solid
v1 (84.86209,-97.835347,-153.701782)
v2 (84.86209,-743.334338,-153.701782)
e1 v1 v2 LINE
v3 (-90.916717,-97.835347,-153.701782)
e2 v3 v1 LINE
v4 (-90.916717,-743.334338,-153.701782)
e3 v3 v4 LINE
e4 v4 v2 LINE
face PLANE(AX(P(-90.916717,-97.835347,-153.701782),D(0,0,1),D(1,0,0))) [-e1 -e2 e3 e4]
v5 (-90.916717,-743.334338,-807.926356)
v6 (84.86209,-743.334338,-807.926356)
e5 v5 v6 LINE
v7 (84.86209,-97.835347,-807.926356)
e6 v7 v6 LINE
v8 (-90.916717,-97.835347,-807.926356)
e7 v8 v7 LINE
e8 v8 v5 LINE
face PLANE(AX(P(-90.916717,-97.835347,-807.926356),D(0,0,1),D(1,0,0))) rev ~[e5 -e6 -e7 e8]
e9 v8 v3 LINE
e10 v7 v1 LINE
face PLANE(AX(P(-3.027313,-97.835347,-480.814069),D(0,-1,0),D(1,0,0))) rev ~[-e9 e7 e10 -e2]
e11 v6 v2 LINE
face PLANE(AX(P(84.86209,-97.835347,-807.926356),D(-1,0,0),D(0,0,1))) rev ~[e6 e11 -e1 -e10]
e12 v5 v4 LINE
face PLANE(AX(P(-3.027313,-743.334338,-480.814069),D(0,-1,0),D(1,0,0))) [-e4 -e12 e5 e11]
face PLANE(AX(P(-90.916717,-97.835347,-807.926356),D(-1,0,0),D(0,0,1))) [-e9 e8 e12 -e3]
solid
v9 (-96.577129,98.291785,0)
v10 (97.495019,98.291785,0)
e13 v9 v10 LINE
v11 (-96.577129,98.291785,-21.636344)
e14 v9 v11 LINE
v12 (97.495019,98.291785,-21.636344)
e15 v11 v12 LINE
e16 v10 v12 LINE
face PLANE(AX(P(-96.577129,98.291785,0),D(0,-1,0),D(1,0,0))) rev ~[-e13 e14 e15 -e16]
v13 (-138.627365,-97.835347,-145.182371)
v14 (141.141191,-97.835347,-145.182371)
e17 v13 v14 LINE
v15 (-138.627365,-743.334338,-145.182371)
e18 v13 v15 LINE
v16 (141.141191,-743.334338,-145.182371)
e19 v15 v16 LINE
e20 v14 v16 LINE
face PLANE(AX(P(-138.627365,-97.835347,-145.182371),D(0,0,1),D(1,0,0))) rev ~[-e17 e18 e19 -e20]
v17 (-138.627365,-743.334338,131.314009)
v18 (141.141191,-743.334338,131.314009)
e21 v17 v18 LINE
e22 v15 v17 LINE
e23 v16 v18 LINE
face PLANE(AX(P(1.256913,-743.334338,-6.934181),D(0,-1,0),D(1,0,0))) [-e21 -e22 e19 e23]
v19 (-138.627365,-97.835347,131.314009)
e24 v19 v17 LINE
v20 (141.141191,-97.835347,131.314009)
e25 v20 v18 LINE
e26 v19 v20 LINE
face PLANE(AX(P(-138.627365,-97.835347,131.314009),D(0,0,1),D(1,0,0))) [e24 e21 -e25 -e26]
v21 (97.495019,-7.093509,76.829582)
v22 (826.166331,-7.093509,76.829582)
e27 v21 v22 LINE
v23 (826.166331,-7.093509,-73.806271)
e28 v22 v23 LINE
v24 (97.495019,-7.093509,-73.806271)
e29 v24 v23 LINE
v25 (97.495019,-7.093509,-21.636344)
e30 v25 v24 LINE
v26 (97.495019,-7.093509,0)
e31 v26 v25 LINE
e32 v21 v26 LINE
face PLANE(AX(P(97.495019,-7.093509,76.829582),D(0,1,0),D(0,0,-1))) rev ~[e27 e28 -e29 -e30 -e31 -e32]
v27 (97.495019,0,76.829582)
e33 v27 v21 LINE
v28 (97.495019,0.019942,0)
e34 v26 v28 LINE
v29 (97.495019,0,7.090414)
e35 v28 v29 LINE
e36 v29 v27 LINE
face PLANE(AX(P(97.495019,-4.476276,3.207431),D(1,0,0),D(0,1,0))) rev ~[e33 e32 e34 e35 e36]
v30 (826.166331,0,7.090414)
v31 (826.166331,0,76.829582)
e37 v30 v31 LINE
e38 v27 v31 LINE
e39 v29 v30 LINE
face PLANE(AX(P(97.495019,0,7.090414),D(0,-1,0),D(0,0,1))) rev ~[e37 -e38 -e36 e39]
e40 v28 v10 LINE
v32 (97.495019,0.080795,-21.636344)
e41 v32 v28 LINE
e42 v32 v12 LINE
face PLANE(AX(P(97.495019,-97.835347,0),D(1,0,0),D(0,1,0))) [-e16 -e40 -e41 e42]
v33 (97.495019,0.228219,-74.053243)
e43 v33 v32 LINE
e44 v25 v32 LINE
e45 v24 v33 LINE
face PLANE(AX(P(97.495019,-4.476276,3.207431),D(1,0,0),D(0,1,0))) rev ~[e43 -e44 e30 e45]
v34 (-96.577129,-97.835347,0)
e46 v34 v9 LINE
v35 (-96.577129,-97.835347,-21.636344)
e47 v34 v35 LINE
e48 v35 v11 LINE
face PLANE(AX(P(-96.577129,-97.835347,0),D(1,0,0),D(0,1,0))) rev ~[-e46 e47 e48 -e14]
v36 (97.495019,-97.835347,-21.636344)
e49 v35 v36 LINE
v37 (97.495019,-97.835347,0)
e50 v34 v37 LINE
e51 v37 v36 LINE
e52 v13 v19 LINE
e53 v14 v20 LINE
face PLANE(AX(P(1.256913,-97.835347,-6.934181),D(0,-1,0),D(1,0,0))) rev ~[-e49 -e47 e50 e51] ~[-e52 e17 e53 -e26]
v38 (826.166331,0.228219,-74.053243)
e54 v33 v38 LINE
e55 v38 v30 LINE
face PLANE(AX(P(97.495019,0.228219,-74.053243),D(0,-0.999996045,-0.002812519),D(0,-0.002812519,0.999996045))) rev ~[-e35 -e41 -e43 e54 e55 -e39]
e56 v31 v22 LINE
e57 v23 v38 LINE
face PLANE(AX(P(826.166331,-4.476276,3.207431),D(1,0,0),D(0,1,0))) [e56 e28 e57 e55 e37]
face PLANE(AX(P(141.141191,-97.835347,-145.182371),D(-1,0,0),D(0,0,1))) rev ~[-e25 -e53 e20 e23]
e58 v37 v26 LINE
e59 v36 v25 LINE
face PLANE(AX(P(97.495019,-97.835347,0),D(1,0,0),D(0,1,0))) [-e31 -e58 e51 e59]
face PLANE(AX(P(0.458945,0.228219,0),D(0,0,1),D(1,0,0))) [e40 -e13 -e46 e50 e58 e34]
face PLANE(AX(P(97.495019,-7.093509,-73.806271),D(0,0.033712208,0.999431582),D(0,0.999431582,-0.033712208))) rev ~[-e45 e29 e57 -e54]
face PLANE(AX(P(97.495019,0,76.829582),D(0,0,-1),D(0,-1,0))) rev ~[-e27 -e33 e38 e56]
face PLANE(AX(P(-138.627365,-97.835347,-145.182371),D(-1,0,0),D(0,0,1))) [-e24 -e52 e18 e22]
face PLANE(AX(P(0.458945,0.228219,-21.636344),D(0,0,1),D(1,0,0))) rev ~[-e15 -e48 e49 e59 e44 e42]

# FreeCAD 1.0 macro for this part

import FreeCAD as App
import Part
import Sketcher
from FreeCAD import Vector
Q = App.Units.Quantity

doc = App.newDocument("Part")
body = doc.addObject("PartDesign::Body", "Body")
body.AllowCompound = True

sketch1 = body.newObject("Sketcher::SketchObject", "Sketch")
sketch1.AttachmentSupport = (doc.getObject("XY_Plane"), [""])
sketch1.MapMode = "FlatFace"
sketch1.addGeometry(Part.LineSegment(Vector(-96.577129, 98.291785, 0), Vector(-96.577129, -97.835347, 0)), False)
sketch1.addGeometry(Part.LineSegment(Vector(-96.577129, -97.835347, 0), Vector(97.495019, -97.835347, 0)), False)
sketch1.addGeometry(Part.LineSegment(Vector(97.495019, -97.835347, 0), Vector(97.495019, 98.291785, 0)), False)
sketch1.addGeometry(Part.LineSegment(Vector(97.495019, 98.291785, 0), Vector(-96.577129, 98.291785, 0)), False)
sketch1.addConstraint(Sketcher.Constraint("Coincident", 0, 2, 1, 1))
sketch1.addConstraint(Sketcher.Constraint("Coincident", 1, 2, 2, 1))
sketch1.addConstraint(Sketcher.Constraint("Coincident", 2, 2, 3, 1))
sketch1.addConstraint(Sketcher.Constraint("Coincident", 3, 2, 0, 1))
sketch1.addConstraint(Sketcher.Constraint("Vertical", 0))
sketch1.addConstraint(Sketcher.Constraint("Horizontal", 1))
sketch1.addConstraint(Sketcher.Constraint("Vertical", 2))
sketch1.addConstraint(Sketcher.Constraint("Horizontal", 3))
sketch1.addConstraint(Sketcher.Constraint("DistanceX", 1, 1, 1, 2, Q("194.072149 mm")))
sketch1.addConstraint(Sketcher.Constraint("DistanceY", 0, 2, 0, 1, Q("196.127132 mm")))
sketch1.addConstraint(Sketcher.Constraint("DistanceX", 0, 2, -1, 1, Q("96.577129 mm")))
sketch1.addConstraint(Sketcher.Constraint("DistanceY", 0, 2, -1, 1, Q("97.835347 mm")))
pad1 = body.newObject("PartDesign::Pad", "Pad")
pad1.Profile = sketch1
pad1.Length = 21.636344
pad1.Reversed = True

sketch2 = body.newObject("Sketcher::SketchObject", "Sketch001")
sketch2.AttachmentSupport = (doc.getObject("YZ_Plane"), [""])
sketch2.MapMode = "FlatFace"
sketch2.AttachmentOffset = App.Placement(Vector(0, 0, 97.495019), App.Rotation())
sketch2.addGeometry(Part.LineSegment(Vector(0, 7.090414, 0), Vector(0, 76.829582, 0)), False)
sketch2.addGeometry(Part.LineSegment(Vector(0, 76.829582, 0), Vector(-7.093509, 76.829582, 0)), False)
sketch2.addGeometry(Part.LineSegment(Vector(-7.093509, 76.829582, 0), Vector(-7.093509, -73.806271, 0)), False)
sketch2.addGeometry(Part.LineSegment(Vector(-7.093509, -73.806271, 0), Vector(0.228219, -74.053243, 0)), False)
sketch2.addGeometry(Part.LineSegment(Vector(0.228219, -74.053243, 0), Vector(0, 7.090414, 0)), False)
sketch2.addConstraint(Sketcher.Constraint("Coincident", 0, 2, 1, 1))
sketch2.addConstraint(Sketcher.Constraint("Coincident", 1, 2, 2, 1))
sketch2.addConstraint(Sketcher.Constraint("Coincident", 2, 2, 3, 1))
sketch2.addConstraint(Sketcher.Constraint("Coincident", 3, 2, 4, 1))
sketch2.addConstraint(Sketcher.Constraint("Coincident", 4, 2, 0, 1))
sketch2.addConstraint(Sketcher.Constraint("Vertical", 0))
sketch2.addConstraint(Sketcher.Constraint("Horizontal", 1))
sketch2.addConstraint(Sketcher.Constraint("Vertical", 2))
sketch2.addConstraint(Sketcher.Constraint("PointOnObject", 0, 2, -2))
sketch2.addConstraint(Sketcher.Constraint("DistanceX", 1, 2, 1, 1, Q("7.093509 mm")))
sketch2.addConstraint(Sketcher.Constraint("DistanceY", 0, 1, 0, 2, Q("69.739168 mm")))
sketch2.addConstraint(Sketcher.Constraint("DistanceY", 2, 2, 2, 1, Q("150.635853 mm")))
sketch2.addConstraint(Sketcher.Constraint("DistanceY", -1, 1, 0, 2, Q("76.829582 mm")))
sketch2.addConstraint(Sketcher.Constraint("DistanceX", -1, 1, 3, 2, Q("0.228219 mm")))
sketch2.addConstraint(Sketcher.Constraint("DistanceY", 3, 2, 2, 2, Q("0.246972 mm")))
pad2 = body.newObject("PartDesign::Pad", "Pad001")
pad2.Profile = sketch2
pad2.Length = 728.671312

sketch3 = body.newObject("Sketcher::SketchObject", "Sketch002")
sketch3.AttachmentSupport = (doc.getObject("XZ_Plane"), [""])
sketch3.MapMode = "FlatFace"
sketch3.AttachmentOffset = App.Placement(Vector(0, 0, 97.835347), App.Rotation())
sketch3.addGeometry(Part.LineSegment(Vector(-90.916717, -153.701782, 0), Vector(-90.916717, -807.926356, 0)), False)
sketch3.addGeometry(Part.LineSegment(Vector(-90.916717, -807.926356, 0), Vector(84.86209, -807.926356, 0)), False)
sketch3.addGeometry(Part.LineSegment(Vector(84.86209, -807.926356, 0), Vector(84.86209, -153.701782, 0)), False)
sketch3.addGeometry(Part.LineSegment(Vector(84.86209, -153.701782, 0), Vector(-90.916717, -153.701782, 0)), False)
sketch3.addGeometry(Part.LineSegment(Vector(-138.627365, 131.314009, 0), Vector(-138.627365, -145.182371, 0)), False)
sketch3.addGeometry(Part.LineSegment(Vector(-138.627365, -145.182371, 0), Vector(141.141191, -145.182371, 0)), False)
sketch3.addGeometry(Part.LineSegment(Vector(141.141191, -145.182371, 0), Vector(141.141191, 131.314009, 0)), False)
sketch3.addGeometry(Part.LineSegment(Vector(141.141191, 131.314009, 0), Vector(-138.627365, 131.314009, 0)), False)
sketch3.addConstraint(Sketcher.Constraint("Coincident", 0, 2, 1, 1))
sketch3.addConstraint(Sketcher.Constraint("Coincident", 1, 2, 2, 1))
sketch3.addConstraint(Sketcher.Constraint("Coincident", 2, 2, 3, 1))
sketch3.addConstraint(Sketcher.Constraint("Coincident", 3, 2, 0, 1))
sketch3.addConstraint(Sketcher.Constraint("Coincident", 4, 2, 5, 1))
sketch3.addConstraint(Sketcher.Constraint("Coincident", 5, 2, 6, 1))
sketch3.addConstraint(Sketcher.Constraint("Coincident", 6, 2, 7, 1))
sketch3.addConstraint(Sketcher.Constraint("Coincident", 7, 2, 4, 1))
sketch3.addConstraint(Sketcher.Constraint("Vertical", 0))
sketch3.addConstraint(Sketcher.Constraint("Horizontal", 1))
sketch3.addConstraint(Sketcher.Constraint("Vertical", 2))
sketch3.addConstraint(Sketcher.Constraint("Horizontal", 3))
sketch3.addConstraint(Sketcher.Constraint("Vertical", 4))
sketch3.addConstraint(Sketcher.Constraint("Horizontal", 5))
sketch3.addConstraint(Sketcher.Constraint("Vertical", 6))
sketch3.addConstraint(Sketcher.Constraint("Horizontal", 7))
sketch3.addConstraint(Sketcher.Constraint("DistanceY", 4, 2, 4, 1, Q("276.49638 mm")))
sketch3.addConstraint(Sketcher.Constraint("DistanceX", 2, 2, 5, 2, Q("56.2791 mm")))
sketch3.addConstraint(Sketcher.Constraint("DistanceX", 1, 1, 1, 2, Q("175.778807 mm")))
sketch3.addConstraint(Sketcher.Constraint("DistanceX", 5, 1, 5, 2, Q("279.768556 mm")))
sketch3.addConstraint(Sketcher.Constraint("DistanceY", 0, 2, 0, 1, Q("654.224575 mm")))
sketch3.addConstraint(Sketcher.Constraint("DistanceX", -1, 1, 1, 2, Q("84.86209 mm")))
sketch3.addConstraint(Sketcher.Constraint("DistanceY", 2, 2, -1, 1, Q("153.701782 mm")))
sketch3.addConstraint(Sketcher.Constraint("DistanceY", 4, 2, -1, 1, Q("145.182371 mm")))
pad3 = body.newObject("PartDesign::Pad", "Pad002")
pad3.Profile = sketch3
pad3.Length = 645.498991

doc.recompute()
